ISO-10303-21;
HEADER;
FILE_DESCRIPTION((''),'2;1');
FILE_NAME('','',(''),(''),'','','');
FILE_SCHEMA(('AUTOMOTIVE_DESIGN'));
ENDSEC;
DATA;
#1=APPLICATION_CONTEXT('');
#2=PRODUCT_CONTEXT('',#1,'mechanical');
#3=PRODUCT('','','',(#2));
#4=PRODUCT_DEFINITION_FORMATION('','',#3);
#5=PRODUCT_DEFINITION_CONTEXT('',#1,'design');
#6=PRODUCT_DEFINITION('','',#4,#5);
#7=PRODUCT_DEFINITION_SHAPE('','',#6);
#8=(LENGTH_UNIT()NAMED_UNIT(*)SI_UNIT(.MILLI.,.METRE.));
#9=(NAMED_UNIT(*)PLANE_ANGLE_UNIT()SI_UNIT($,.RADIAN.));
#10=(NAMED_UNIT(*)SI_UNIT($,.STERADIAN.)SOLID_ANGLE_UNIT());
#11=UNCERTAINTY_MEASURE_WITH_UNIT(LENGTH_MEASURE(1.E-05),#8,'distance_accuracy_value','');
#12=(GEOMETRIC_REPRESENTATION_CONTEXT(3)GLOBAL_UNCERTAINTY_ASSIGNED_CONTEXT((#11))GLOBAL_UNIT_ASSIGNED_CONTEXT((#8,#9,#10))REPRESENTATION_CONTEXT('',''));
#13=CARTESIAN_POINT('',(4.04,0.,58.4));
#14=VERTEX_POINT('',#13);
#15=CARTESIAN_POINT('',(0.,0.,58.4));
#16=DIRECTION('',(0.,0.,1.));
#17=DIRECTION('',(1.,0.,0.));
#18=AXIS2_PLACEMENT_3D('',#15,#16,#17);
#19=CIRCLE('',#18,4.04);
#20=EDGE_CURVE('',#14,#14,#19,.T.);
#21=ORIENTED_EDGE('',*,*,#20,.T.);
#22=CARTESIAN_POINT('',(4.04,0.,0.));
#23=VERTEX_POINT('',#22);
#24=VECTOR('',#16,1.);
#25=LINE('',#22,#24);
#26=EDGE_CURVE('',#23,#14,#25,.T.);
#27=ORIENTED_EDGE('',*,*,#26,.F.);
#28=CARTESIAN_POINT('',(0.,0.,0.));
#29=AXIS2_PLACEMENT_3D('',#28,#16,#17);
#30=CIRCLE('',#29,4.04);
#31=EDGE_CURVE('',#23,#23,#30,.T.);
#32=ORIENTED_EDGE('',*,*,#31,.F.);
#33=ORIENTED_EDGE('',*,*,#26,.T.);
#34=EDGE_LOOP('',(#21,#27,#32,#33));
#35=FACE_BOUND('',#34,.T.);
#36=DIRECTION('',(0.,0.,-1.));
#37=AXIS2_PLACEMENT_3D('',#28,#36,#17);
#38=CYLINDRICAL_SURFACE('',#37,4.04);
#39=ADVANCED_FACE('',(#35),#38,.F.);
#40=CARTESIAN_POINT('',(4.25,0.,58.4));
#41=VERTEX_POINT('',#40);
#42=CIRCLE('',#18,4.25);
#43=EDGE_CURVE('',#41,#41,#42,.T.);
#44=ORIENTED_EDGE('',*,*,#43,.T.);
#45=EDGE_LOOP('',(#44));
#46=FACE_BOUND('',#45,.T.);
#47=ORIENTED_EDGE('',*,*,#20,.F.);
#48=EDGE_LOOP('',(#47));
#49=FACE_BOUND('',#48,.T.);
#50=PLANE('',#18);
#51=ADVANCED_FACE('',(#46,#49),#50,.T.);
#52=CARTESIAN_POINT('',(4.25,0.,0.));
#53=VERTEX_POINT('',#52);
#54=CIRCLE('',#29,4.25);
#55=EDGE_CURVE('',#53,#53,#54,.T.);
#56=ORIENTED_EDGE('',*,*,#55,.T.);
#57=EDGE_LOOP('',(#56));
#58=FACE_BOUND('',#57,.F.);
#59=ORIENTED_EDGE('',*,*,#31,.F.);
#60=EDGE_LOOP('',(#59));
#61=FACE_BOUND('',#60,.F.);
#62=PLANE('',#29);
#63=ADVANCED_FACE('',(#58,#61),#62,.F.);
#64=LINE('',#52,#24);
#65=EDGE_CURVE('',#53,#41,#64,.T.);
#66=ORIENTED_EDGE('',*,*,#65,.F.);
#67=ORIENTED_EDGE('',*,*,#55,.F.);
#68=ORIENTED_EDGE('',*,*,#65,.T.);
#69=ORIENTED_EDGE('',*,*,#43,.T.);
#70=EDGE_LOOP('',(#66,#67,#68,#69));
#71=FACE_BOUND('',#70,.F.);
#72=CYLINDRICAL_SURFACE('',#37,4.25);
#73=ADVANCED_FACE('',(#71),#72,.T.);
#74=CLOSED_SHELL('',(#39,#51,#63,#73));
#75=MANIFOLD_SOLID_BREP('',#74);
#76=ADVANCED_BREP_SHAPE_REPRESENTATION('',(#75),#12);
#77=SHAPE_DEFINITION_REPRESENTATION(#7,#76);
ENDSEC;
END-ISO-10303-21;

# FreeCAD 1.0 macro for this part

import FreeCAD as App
import Part
import Sketcher

doc = App.newDocument("Part")
body = doc.addObject("PartDesign::Body", "Body")

# Sketch on XY plane
sketch1 = body.newObject("Sketcher::SketchObject", "Sketch")
sketch1.AttachmentSupport = (doc.getObject("XY_Plane"), [""])
sketch1.MapMode = "FlatFace"
sketch1.addGeometry([
    Part.Circle(App.Vector(0, 0, 0), App.Vector(0, 0, 1), 4.2),
    Part.Circle(App.Vector(0, 0, 0), App.Vector(0, 0, 1), 4),
], False)
sketch1.addConstraint([
    Sketcher.Constraint("Coincident", 0, 3, -1, 1),
    Sketcher.Constraint("Coincident", 1, 3, -1, 1),
    Sketcher.Constraint("Diameter", 0, 8.5),
    Sketcher.Constraint("Diameter", 1, 8.08),
])
pad1 = body.newObject("PartDesign::Pad", "Pad")
pad1.Profile = sketch1
pad1.Length = 58.4

doc.recompute()
